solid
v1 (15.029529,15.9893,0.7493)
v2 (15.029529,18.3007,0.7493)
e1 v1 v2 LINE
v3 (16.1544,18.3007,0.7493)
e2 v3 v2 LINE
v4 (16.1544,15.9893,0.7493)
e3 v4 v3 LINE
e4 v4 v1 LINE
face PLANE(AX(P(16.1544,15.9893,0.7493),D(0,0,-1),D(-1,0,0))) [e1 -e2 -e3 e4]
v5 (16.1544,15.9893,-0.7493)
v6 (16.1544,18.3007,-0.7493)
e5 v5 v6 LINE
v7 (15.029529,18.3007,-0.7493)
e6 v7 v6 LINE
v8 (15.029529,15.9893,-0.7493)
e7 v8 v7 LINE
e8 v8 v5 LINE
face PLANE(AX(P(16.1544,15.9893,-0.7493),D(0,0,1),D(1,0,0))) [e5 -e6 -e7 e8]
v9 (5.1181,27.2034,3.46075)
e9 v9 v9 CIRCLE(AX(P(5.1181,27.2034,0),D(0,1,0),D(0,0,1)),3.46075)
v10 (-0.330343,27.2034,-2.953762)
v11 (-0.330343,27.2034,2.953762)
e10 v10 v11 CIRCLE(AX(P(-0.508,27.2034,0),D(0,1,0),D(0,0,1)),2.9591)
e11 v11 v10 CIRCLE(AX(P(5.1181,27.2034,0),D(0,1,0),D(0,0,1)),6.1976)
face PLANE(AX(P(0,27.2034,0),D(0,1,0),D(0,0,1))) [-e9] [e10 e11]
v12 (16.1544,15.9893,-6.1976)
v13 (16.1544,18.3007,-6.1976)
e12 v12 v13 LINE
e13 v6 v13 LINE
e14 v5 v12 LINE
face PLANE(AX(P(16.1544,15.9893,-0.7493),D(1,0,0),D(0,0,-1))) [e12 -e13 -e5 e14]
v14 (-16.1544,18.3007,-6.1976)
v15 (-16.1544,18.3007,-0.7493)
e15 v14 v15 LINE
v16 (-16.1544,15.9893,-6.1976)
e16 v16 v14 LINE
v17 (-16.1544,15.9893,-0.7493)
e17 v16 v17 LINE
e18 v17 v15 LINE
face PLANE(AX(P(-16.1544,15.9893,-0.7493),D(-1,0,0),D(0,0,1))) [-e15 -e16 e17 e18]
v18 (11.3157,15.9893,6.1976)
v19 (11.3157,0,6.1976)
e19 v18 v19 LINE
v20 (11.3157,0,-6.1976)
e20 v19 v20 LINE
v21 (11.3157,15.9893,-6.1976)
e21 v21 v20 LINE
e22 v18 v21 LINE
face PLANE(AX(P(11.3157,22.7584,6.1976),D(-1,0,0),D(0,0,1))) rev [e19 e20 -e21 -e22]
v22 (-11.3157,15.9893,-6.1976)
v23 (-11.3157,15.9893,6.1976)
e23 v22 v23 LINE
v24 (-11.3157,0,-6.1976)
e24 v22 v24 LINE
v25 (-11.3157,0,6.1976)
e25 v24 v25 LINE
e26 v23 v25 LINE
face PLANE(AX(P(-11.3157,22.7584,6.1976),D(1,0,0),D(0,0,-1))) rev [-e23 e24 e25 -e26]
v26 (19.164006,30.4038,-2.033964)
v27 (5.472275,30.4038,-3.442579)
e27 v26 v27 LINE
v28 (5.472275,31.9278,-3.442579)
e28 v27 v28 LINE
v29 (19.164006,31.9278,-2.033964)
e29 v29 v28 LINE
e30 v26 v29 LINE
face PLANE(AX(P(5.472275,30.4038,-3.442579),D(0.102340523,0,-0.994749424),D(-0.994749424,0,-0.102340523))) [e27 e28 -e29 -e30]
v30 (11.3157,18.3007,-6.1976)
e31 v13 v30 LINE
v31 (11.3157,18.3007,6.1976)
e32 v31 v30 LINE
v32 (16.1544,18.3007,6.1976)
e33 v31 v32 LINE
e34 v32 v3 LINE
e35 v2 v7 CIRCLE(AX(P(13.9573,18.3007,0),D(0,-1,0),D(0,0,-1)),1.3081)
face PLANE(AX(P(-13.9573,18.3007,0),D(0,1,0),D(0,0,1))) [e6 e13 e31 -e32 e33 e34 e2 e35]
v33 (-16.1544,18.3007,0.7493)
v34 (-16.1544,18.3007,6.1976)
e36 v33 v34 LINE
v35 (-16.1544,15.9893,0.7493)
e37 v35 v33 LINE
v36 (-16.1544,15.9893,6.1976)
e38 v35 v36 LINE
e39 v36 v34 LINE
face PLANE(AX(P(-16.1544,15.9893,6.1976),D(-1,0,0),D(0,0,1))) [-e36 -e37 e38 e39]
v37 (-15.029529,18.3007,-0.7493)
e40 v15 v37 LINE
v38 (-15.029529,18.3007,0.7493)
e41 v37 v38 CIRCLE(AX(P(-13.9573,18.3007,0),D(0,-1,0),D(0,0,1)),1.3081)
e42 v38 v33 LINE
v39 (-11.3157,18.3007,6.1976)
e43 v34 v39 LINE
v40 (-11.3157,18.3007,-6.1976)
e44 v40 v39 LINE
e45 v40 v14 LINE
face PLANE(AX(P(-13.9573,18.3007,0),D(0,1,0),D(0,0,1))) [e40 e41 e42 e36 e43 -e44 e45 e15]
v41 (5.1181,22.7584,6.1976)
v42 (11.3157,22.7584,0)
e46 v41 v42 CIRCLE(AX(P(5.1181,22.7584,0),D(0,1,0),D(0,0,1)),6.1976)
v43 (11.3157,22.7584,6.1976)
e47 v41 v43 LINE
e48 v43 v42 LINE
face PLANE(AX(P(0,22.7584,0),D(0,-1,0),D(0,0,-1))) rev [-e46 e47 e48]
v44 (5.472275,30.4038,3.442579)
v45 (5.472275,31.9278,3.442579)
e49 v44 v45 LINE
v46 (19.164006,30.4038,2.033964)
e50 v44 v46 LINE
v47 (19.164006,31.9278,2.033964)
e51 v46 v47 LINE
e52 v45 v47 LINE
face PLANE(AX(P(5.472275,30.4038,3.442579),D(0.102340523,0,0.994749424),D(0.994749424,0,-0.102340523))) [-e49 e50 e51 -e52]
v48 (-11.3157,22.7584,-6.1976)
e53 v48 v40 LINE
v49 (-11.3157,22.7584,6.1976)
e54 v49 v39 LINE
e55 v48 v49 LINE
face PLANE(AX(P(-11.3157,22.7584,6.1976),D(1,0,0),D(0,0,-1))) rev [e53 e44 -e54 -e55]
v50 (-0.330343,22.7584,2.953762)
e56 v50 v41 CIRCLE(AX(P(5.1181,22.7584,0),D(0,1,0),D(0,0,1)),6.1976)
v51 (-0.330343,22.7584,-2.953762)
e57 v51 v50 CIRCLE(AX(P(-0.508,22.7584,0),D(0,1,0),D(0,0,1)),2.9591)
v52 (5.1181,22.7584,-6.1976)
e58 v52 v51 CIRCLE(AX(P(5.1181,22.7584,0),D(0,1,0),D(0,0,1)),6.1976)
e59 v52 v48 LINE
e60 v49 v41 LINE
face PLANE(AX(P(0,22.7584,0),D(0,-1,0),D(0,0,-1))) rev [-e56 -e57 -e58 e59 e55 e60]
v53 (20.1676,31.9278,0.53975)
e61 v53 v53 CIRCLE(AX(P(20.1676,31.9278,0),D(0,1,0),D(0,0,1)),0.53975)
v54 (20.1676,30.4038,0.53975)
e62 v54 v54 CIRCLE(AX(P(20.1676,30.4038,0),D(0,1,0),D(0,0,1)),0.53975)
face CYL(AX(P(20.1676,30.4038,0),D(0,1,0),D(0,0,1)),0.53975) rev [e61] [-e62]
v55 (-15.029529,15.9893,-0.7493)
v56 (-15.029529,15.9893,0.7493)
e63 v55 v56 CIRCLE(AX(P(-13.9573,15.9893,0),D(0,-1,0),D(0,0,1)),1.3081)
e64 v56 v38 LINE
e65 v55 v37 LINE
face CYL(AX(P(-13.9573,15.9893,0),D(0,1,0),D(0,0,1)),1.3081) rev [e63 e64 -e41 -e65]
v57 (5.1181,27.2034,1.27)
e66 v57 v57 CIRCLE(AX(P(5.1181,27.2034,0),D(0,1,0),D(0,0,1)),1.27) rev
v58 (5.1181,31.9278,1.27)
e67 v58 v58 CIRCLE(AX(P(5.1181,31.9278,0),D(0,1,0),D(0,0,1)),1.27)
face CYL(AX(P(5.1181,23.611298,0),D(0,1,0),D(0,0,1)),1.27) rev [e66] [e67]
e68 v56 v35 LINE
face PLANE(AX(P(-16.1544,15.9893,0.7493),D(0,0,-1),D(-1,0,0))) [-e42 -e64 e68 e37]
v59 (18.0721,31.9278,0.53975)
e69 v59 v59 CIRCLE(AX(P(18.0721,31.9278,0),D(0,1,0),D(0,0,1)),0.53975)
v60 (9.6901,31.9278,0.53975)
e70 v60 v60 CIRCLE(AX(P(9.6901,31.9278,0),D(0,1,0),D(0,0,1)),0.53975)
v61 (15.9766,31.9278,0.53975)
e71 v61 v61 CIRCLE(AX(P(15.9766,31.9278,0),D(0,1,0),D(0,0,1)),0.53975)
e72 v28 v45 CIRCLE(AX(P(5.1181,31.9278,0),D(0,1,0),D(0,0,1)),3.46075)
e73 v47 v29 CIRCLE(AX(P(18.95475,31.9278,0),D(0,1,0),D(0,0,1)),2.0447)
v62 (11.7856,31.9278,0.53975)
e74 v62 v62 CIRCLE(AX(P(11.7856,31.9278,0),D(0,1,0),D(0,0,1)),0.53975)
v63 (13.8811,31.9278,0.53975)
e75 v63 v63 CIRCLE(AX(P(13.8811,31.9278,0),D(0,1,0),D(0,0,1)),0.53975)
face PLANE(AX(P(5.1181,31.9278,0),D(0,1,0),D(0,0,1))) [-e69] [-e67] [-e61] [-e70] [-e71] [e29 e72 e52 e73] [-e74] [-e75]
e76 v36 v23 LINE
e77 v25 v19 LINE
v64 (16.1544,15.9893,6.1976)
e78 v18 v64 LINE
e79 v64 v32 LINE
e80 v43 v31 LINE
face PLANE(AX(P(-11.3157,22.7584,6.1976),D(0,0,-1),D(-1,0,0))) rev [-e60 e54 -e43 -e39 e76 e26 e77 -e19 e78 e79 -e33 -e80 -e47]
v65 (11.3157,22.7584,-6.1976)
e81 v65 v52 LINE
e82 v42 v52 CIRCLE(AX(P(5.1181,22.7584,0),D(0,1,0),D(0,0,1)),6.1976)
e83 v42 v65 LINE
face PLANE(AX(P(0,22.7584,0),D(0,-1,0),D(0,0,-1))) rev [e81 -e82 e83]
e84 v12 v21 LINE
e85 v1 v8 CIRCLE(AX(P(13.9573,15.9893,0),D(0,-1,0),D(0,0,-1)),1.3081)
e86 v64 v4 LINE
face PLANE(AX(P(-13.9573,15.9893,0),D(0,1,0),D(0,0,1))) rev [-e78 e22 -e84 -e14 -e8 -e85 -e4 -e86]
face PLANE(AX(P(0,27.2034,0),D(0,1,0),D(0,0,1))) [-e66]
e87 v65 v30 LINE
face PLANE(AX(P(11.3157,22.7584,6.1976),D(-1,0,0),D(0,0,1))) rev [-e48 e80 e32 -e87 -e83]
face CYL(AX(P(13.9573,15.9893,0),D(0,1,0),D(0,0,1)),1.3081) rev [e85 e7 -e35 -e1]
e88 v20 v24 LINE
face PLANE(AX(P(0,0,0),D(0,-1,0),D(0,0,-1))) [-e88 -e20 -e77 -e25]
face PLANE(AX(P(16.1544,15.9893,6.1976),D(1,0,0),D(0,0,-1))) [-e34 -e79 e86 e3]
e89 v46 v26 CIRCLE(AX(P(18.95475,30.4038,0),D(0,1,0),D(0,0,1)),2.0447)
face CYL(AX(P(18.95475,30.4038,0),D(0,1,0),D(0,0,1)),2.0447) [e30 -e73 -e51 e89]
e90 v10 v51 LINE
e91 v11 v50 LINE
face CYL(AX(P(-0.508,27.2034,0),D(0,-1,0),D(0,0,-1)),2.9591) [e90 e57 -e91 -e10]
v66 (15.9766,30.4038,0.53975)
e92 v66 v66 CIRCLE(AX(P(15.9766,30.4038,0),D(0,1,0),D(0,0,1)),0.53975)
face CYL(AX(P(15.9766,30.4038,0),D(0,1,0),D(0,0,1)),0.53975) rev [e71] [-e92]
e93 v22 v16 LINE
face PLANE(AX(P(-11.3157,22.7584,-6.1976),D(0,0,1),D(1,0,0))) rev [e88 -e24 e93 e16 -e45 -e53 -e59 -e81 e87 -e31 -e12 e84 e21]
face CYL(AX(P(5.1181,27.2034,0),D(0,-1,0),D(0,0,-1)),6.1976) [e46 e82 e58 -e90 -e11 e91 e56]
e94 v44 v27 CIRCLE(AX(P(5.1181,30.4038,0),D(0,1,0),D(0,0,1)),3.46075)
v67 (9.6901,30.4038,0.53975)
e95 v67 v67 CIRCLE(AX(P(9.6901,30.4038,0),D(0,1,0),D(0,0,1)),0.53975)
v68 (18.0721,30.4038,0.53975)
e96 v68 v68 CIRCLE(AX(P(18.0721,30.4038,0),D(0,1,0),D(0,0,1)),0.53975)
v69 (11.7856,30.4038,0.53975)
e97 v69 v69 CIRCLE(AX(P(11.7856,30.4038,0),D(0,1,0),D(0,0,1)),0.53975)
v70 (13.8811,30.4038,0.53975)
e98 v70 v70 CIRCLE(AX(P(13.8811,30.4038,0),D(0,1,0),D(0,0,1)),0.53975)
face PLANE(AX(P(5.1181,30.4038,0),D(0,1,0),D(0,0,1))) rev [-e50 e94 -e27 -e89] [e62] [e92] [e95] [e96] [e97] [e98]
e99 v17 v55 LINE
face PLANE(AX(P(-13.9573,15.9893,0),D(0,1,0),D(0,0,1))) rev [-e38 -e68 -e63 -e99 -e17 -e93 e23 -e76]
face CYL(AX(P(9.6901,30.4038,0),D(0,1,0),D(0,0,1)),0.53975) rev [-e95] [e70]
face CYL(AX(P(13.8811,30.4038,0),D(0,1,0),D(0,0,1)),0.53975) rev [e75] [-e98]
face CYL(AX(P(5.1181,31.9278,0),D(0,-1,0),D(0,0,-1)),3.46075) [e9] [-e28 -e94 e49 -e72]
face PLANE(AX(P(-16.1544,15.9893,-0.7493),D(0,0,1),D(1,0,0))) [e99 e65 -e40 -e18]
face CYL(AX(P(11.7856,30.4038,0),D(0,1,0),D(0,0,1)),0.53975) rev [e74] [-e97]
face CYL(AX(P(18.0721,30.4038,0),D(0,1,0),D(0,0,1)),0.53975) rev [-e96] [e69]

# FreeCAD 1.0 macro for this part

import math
import FreeCAD as App
import Part
import Sketcher
from FreeCAD import Vector
Q = App.Units.Quantity

doc = App.newDocument("Part")
params = doc.addObject("Spreadsheet::Sheet", "Params")
for row, (alias, value) in enumerate([
    ("sketch1_width", "0.891 in"),
    ("sketch1_height", "0.488 in"),
    ("pad1_length", "0.896 in"),
    ("sketch2_radius", "0.244 in"),
    ("pad2_length", "0.175 in"),
    ("pad3_length", "0.186 in"),
    ("pad4_length", "0.06 in"),
    ("sketch5_width", "1.272 in"),
    ("pad5_length", "0.091 in"),
    ("sketch6_diameter", "0.1 in"),
    ("pocket1_length", "0.186 in"),
], start=1):
    params.set(f"A{row}", alias)
    params.set(f"B{row}", "=" + value)
    params.setAlias(f"B{row}", alias)

body = doc.addObject("PartDesign::Body", "Body")

# Sketch on XZ plane
sketch1 = body.newObject("Sketcher::SketchObject", "Sketch")
sketch1.AttachmentSupport = (doc.getObject("XZ_Plane"), [""])
sketch1.MapMode = "FlatFace"
sketch1.addGeometry([
    Part.LineSegment(Vector(-11, -6, 0), Vector(-11, 6, 0)),
    Part.LineSegment(Vector(-11, 6, 0), Vector(11, 6, 0)),
    Part.LineSegment(Vector(11, 6, 0), Vector(11, -6, 0)),
    Part.LineSegment(Vector(11, -6, 0), Vector(-11, -6, 0)),
], False)
sketch1.addConstraint([
    Sketcher.Constraint("Coincident", 0, 2, 1, 1),
    Sketcher.Constraint("Coincident", 1, 2, 2, 1),
    Sketcher.Constraint("Coincident", 2, 2, 3, 1),
    Sketcher.Constraint("Coincident", 3, 2, 0, 1),
    Sketcher.Constraint("Vertical", 0),
    Sketcher.Constraint("Horizontal", 1),
    Sketcher.Constraint("Vertical", 2),
    Sketcher.Constraint("Horizontal", 3),
    Sketcher.Constraint("Symmetric", 0, 2, 2, 2, -1, 1),
    Sketcher.Constraint("DistanceX", 1, 1, 1, 2, Q("0.891 in")),
    Sketcher.Constraint("DistanceY", 0, 1, 0, 2, Q("0.488 in")),
])
sketch1.setExpression("Constraints[9]", "Params.sketch1_width")
sketch1.setExpression("Constraints[10]", "Params.sketch1_height")
pad1 = body.newObject("PartDesign::Pad", "Pad")
pad1.Profile = sketch1
pad1.setExpression("Length", "Params.pad1_length")
pad1.Reversed = True

# Sketch on XZ plane
sketch2 = body.newObject("Sketcher::SketchObject", "Sketch001")
sketch2.AttachmentSupport = (doc.getObject("XZ_Plane"), [""])
sketch2.MapMode = "FlatFace"
sketch2.AttachmentOffset = App.Placement(Vector(0, 0, -0.896 * 25.4), App.Rotation())
sketch2.addGeometry([
    Part.ArcOfCircle(Part.Circle(Vector(5.1, 0, 0), Vector(0, 0, 1), 6.2), math.radians(-152), math.radians(152)),
    Part.ArcOfCircle(Part.Circle(Vector(-0.5, 0, 0), Vector(0, 0, 1), 3), math.radians(87), math.radians(273)),
], False)
sketch2.addConstraint([
    Sketcher.Constraint("Coincident", 0, 1, 1, 2),
    Sketcher.Constraint("Coincident", 1, 1, 0, 2),
    Sketcher.Constraint("Symmetric", 0, 1, 1, 1, -1),
    Sketcher.Constraint("Radius", 0, Q("0.244 in")),
    Sketcher.Constraint("Radius", 1, Q("0.1165 in")),
    Sketcher.Constraint("DistanceX", 1, 3, -1, 1, Q("0.02 in")),
    Sketcher.Constraint("DistanceX", -1, 1, 0, 3, Q("0.2015 in")),
])
sketch2.setExpression("Constraints[3]", "Params.sketch2_radius")
pad2 = body.newObject("PartDesign::Pad", "Pad001")
pad2.Profile = sketch2
pad2.setExpression("Length", "Params.pad2_length")
pad2.Reversed = True

# Sketch on XZ plane
sketch3 = body.newObject("Sketcher::SketchObject", "Sketch002")
sketch3.AttachmentSupport = (doc.getObject("XZ_Plane"), [""])
sketch3.MapMode = "FlatFace"
sketch3.AttachmentOffset = App.Placement(Vector(0, 0, -1.071 * 25.4), App.Rotation())
sketch3.addGeometry(Part.Circle(Vector(5.1, 0, 0), Vector(0, 0, 1), 3.5), False)
sketch3.addConstraint([
    Sketcher.Constraint("PointOnObject", 0, 3, -1),
    Sketcher.Constraint("Diameter", 0, Q("0.2725 in")),
    Sketcher.Constraint("DistanceX", -1, 1, 0, 3, Q("0.2015 in")),
])
pad3 = body.newObject("PartDesign::Pad", "Pad002")
pad3.Profile = sketch3
pad3.setExpression("Length", "Params.pad3_length")
pad3.Reversed = True

# Sketch on XZ plane
sketch4 = body.newObject("Sketcher::SketchObject", "Sketch003")
sketch4.AttachmentSupport = (doc.getObject("XZ_Plane"), [""])
sketch4.MapMode = "FlatFace"
sketch4.AttachmentOffset = App.Placement(Vector(0, 0, -1.257 * 25.4), App.Rotation())
sketch4.addGeometry([
    Part.LineSegment(Vector(19.2, -2, 0), Vector(5.5, -3.4, 0)),  # 0
    Part.ArcOfCircle(Part.Circle(Vector(5.1, 0, 0), Vector(0, 0, 1), 3.5), math.radians(84), math.radians(276)),  # 1
    Part.LineSegment(Vector(5.5, 3.4, 0), Vector(19.2, 2, 0)),  # 2
    Part.ArcOfCircle(Part.Circle(Vector(19, 0, 0), Vector(0, 0, 1), 2), math.radians(-84), math.radians(84)),  # 3
    Part.Circle(Vector(20.2, 0, 0), Vector(0, 0, 1), 0.5),  # 4
    Part.Circle(Vector(18.1, 0, 0), Vector(0, 0, 1), 0.5),  # 5
    Part.Circle(Vector(16, 0, 0), Vector(0, 0, 1), 0.5),  # 6
    Part.Circle(Vector(13.9, 0, 0), Vector(0, 0, 1), 0.5),  # 7
    Part.Circle(Vector(11.8, 0, 0), Vector(0, 0, 1), 0.5),  # 8
    Part.Circle(Vector(9.7, 0, 0), Vector(0, 0, 1), 0.5),  # 9
], False)
sketch4.addConstraint([
    Sketcher.Constraint("Tangent", 0, 2, 1, 2),
    Sketcher.Constraint("Tangent", 1, 1, 2, 1),
    Sketcher.Constraint("Tangent", 2, 2, 3, 2),
    Sketcher.Constraint("Tangent", 3, 1, 0, 1),
    Sketcher.Constraint("Equal", 4, 5),
    Sketcher.Constraint("Equal", 5, 6),
    Sketcher.Constraint("Equal", 6, 7),
    Sketcher.Constraint("Equal", 7, 8),
    Sketcher.Constraint("Equal", 8, 9),
    Sketcher.Constraint("Symmetric", 0, 2, 1, 1, -1),
    Sketcher.Constraint("PointOnObject", 4, 3, -1),
    Sketcher.Constraint("PointOnObject", 5, 3, -1),
    Sketcher.Constraint("PointOnObject", 6, 3, -1),
    Sketcher.Constraint("PointOnObject", 7, 3, -1),
    Sketcher.Constraint("PointOnObject", 8, 3, -1),
    Sketcher.Constraint("PointOnObject", 9, 3, -1),
    Sketcher.Constraint("Diameter", 4, Q("0.0425 in")),
    Sketcher.Constraint("Radius", 3, Q("0.0805 in")),
    Sketcher.Constraint("DistanceX", 1, 3, 5, 3, Q("0.51 in")),
    Sketcher.Constraint("DistanceX", 1, 3, 9, 3, Q("0.18 in")),
    Sketcher.Constraint("DistanceX", -1, 1, 4, 3, Q("0.794 in")),
    Sketcher.Constraint("DistanceX", -1, 1, 6, 3, Q("0.629 in")),
    Sketcher.Constraint("DistanceX", -1, 1, 8, 3, Q("0.464 in")),
    Sketcher.Constraint("Radius", 1, 3.46075),
    Sketcher.Constraint("DistanceX", 7, 3, 5, 3, Q("0.165 in")),
    Sketcher.Constraint("DistanceX", -1, 1, 1, 3, Q("0.2015 in")),
    Sketcher.Constraint("Distance", 0, 13.764),
])
pad4 = body.newObject("PartDesign::Pad", "Pad003")
pad4.Profile = sketch4
pad4.setExpression("Length", "Params.pad4_length")

# Sketch on XZ plane
sketch5 = body.newObject("Sketcher::SketchObject", "Sketch004")
sketch5.AttachmentSupport = (doc.getObject("XZ_Plane"), [""])
sketch5.MapMode = "FlatFace"
sketch5.AttachmentOffset = App.Placement(Vector(0, 0, -0.7205 * 25.4), App.Rotation())
sketch5.addGeometry([
    Part.LineSegment(Vector(-16.2, 6.2, 0), Vector(16.2, 6.2, 0)),  # 0
    Part.LineSegment(Vector(16.2, 6.2, 0), Vector(16.2, 0.7, 0)),  # 1
    Part.LineSegment(Vector(16.2, 0.7, 0), Vector(15, 0.7, 0)),  # 2
    Part.ArcOfCircle(Part.Circle(Vector(14, 0, 0), Vector(0, 0, 1), 1.3), math.radians(35), math.radians(325)),  # 3
    Part.LineSegment(Vector(15, -0.7, 0), Vector(16.2, -0.7, 0)),  # 4
    Part.LineSegment(Vector(16.2, -0.7, 0), Vector(16.2, -6.2, 0)),  # 5
    Part.LineSegment(Vector(16.2, -6.2, 0), Vector(-16.2, -6.2, 0)),  # 6
    Part.LineSegment(Vector(-16.2, -6.2, 0), Vector(-16.2, -0.7, 0)),  # 7
    Part.LineSegment(Vector(-16.2, -0.7, 0), Vector(-15, -0.7, 0)),  # 8
    Part.ArcOfCircle(Part.Circle(Vector(-14, 0, 0), Vector(0, 0, 1), 1.3), math.radians(-145), math.radians(145)),  # 9
    Part.LineSegment(Vector(-15, 0.7, 0), Vector(-16.2, 0.7, 0)),  # 10
    Part.LineSegment(Vector(-16.2, 0.7, 0), Vector(-16.2, 6.2, 0)),  # 11
], False)
sketch5.addConstraint([
    Sketcher.Constraint("Coincident", 0, 2, 1, 1),
    Sketcher.Constraint("Coincident", 1, 2, 2, 1),
    Sketcher.Constraint("Coincident", 2, 2, 3, 1),
    Sketcher.Constraint("Coincident", 3, 2, 4, 1),
    Sketcher.Constraint("Coincident", 4, 2, 5, 1),
    Sketcher.Constraint("Coincident", 5, 2, 6, 1),
    Sketcher.Constraint("Coincident", 6, 2, 7, 1),
    Sketcher.Constraint("Coincident", 7, 2, 8, 1),
    Sketcher.Constraint("Coincident", 8, 2, 9, 1),
    Sketcher.Constraint("Coincident", 9, 2, 10, 1),
    Sketcher.Constraint("Coincident", 10, 2, 11, 1),
    Sketcher.Constraint("Coincident", 11, 2, 0, 1),
    Sketcher.Constraint("Horizontal", 0),
    Sketcher.Constraint("Vertical", 1),
    Sketcher.Constraint("Horizontal", 2),
    Sketcher.Constraint("Horizontal", 4),
    Sketcher.Constraint("Vertical", 5),
    Sketcher.Constraint("Horizontal", 6),
    Sketcher.Constraint("Vertical", 7),
    Sketcher.Constraint("Horizontal", 8),
    Sketcher.Constraint("Horizontal", 10),
    Sketcher.Constraint("Vertical", 11),
    Sketcher.Constraint("Equal", 3, 9),
    Sketcher.Constraint("Symmetric", 3, 3, 9, 3, -1, 1),
    Sketcher.Constraint("Symmetric", 0, 2, 6, 2, -1, 1),
    Sketcher.Constraint("Symmetric", 4, 2, 10, 2, -1, 1),
    Sketcher.Constraint("Symmetric", 4, 2, 7, 2, -2),
    Sketcher.Constraint("Symmetric", 2, 2, 9, 2, -2),
    Sketcher.Constraint("Radius", 3, Q("0.0515 in")),
    Sketcher.Constraint("DistanceX", 0, 1, 0, 2, Q("1.272 in")),
    Sketcher.Constraint("DistanceY", 1, 2, 1, 1, Q("0.2145 in")),
    Sketcher.Constraint("DistanceY", -1, 1, 0, 2, Q("0.244 in")),
    Sketcher.Constraint("DistanceX", 9, 3, 3, 3, Q("1.099 in")),
])
sketch5.setExpression("Constraints[29]", "Params.sketch5_width")
pad5 = body.newObject("PartDesign::Pad", "Pad004")
pad5.Profile = sketch5
pad5.setExpression("Length", "Params.pad5_length")

# Sketch on XZ plane
sketch6 = body.newObject("Sketcher::SketchObject", "Sketch005")
sketch6.AttachmentSupport = (doc.getObject("XZ_Plane"), [""])
sketch6.MapMode = "FlatFace"
sketch6.AttachmentOffset = App.Placement(Vector(0, 0, -1.257 * 25.4), App.Rotation())
sketch6.addGeometry(Part.Circle(Vector(5.1, 0, 0), Vector(0, 0, 1), 1.3), False)
sketch6.addConstraint([
    Sketcher.Constraint("PointOnObject", 0, 3, -1),
    Sketcher.Constraint("Diameter", 0, Q("0.1 in")),
    Sketcher.Constraint("DistanceX", -1, 1, 0, 3, Q("0.2015 in")),
])
sketch6.setExpression("Constraints[1]", "Params.sketch6_diameter")
pocket1 = body.newObject("PartDesign::Pocket", "Pocket")
pocket1.Profile = sketch6
pocket1.setExpression("Length", "Params.pocket1_length")
pocket1.Reversed = True

doc.recompute()
